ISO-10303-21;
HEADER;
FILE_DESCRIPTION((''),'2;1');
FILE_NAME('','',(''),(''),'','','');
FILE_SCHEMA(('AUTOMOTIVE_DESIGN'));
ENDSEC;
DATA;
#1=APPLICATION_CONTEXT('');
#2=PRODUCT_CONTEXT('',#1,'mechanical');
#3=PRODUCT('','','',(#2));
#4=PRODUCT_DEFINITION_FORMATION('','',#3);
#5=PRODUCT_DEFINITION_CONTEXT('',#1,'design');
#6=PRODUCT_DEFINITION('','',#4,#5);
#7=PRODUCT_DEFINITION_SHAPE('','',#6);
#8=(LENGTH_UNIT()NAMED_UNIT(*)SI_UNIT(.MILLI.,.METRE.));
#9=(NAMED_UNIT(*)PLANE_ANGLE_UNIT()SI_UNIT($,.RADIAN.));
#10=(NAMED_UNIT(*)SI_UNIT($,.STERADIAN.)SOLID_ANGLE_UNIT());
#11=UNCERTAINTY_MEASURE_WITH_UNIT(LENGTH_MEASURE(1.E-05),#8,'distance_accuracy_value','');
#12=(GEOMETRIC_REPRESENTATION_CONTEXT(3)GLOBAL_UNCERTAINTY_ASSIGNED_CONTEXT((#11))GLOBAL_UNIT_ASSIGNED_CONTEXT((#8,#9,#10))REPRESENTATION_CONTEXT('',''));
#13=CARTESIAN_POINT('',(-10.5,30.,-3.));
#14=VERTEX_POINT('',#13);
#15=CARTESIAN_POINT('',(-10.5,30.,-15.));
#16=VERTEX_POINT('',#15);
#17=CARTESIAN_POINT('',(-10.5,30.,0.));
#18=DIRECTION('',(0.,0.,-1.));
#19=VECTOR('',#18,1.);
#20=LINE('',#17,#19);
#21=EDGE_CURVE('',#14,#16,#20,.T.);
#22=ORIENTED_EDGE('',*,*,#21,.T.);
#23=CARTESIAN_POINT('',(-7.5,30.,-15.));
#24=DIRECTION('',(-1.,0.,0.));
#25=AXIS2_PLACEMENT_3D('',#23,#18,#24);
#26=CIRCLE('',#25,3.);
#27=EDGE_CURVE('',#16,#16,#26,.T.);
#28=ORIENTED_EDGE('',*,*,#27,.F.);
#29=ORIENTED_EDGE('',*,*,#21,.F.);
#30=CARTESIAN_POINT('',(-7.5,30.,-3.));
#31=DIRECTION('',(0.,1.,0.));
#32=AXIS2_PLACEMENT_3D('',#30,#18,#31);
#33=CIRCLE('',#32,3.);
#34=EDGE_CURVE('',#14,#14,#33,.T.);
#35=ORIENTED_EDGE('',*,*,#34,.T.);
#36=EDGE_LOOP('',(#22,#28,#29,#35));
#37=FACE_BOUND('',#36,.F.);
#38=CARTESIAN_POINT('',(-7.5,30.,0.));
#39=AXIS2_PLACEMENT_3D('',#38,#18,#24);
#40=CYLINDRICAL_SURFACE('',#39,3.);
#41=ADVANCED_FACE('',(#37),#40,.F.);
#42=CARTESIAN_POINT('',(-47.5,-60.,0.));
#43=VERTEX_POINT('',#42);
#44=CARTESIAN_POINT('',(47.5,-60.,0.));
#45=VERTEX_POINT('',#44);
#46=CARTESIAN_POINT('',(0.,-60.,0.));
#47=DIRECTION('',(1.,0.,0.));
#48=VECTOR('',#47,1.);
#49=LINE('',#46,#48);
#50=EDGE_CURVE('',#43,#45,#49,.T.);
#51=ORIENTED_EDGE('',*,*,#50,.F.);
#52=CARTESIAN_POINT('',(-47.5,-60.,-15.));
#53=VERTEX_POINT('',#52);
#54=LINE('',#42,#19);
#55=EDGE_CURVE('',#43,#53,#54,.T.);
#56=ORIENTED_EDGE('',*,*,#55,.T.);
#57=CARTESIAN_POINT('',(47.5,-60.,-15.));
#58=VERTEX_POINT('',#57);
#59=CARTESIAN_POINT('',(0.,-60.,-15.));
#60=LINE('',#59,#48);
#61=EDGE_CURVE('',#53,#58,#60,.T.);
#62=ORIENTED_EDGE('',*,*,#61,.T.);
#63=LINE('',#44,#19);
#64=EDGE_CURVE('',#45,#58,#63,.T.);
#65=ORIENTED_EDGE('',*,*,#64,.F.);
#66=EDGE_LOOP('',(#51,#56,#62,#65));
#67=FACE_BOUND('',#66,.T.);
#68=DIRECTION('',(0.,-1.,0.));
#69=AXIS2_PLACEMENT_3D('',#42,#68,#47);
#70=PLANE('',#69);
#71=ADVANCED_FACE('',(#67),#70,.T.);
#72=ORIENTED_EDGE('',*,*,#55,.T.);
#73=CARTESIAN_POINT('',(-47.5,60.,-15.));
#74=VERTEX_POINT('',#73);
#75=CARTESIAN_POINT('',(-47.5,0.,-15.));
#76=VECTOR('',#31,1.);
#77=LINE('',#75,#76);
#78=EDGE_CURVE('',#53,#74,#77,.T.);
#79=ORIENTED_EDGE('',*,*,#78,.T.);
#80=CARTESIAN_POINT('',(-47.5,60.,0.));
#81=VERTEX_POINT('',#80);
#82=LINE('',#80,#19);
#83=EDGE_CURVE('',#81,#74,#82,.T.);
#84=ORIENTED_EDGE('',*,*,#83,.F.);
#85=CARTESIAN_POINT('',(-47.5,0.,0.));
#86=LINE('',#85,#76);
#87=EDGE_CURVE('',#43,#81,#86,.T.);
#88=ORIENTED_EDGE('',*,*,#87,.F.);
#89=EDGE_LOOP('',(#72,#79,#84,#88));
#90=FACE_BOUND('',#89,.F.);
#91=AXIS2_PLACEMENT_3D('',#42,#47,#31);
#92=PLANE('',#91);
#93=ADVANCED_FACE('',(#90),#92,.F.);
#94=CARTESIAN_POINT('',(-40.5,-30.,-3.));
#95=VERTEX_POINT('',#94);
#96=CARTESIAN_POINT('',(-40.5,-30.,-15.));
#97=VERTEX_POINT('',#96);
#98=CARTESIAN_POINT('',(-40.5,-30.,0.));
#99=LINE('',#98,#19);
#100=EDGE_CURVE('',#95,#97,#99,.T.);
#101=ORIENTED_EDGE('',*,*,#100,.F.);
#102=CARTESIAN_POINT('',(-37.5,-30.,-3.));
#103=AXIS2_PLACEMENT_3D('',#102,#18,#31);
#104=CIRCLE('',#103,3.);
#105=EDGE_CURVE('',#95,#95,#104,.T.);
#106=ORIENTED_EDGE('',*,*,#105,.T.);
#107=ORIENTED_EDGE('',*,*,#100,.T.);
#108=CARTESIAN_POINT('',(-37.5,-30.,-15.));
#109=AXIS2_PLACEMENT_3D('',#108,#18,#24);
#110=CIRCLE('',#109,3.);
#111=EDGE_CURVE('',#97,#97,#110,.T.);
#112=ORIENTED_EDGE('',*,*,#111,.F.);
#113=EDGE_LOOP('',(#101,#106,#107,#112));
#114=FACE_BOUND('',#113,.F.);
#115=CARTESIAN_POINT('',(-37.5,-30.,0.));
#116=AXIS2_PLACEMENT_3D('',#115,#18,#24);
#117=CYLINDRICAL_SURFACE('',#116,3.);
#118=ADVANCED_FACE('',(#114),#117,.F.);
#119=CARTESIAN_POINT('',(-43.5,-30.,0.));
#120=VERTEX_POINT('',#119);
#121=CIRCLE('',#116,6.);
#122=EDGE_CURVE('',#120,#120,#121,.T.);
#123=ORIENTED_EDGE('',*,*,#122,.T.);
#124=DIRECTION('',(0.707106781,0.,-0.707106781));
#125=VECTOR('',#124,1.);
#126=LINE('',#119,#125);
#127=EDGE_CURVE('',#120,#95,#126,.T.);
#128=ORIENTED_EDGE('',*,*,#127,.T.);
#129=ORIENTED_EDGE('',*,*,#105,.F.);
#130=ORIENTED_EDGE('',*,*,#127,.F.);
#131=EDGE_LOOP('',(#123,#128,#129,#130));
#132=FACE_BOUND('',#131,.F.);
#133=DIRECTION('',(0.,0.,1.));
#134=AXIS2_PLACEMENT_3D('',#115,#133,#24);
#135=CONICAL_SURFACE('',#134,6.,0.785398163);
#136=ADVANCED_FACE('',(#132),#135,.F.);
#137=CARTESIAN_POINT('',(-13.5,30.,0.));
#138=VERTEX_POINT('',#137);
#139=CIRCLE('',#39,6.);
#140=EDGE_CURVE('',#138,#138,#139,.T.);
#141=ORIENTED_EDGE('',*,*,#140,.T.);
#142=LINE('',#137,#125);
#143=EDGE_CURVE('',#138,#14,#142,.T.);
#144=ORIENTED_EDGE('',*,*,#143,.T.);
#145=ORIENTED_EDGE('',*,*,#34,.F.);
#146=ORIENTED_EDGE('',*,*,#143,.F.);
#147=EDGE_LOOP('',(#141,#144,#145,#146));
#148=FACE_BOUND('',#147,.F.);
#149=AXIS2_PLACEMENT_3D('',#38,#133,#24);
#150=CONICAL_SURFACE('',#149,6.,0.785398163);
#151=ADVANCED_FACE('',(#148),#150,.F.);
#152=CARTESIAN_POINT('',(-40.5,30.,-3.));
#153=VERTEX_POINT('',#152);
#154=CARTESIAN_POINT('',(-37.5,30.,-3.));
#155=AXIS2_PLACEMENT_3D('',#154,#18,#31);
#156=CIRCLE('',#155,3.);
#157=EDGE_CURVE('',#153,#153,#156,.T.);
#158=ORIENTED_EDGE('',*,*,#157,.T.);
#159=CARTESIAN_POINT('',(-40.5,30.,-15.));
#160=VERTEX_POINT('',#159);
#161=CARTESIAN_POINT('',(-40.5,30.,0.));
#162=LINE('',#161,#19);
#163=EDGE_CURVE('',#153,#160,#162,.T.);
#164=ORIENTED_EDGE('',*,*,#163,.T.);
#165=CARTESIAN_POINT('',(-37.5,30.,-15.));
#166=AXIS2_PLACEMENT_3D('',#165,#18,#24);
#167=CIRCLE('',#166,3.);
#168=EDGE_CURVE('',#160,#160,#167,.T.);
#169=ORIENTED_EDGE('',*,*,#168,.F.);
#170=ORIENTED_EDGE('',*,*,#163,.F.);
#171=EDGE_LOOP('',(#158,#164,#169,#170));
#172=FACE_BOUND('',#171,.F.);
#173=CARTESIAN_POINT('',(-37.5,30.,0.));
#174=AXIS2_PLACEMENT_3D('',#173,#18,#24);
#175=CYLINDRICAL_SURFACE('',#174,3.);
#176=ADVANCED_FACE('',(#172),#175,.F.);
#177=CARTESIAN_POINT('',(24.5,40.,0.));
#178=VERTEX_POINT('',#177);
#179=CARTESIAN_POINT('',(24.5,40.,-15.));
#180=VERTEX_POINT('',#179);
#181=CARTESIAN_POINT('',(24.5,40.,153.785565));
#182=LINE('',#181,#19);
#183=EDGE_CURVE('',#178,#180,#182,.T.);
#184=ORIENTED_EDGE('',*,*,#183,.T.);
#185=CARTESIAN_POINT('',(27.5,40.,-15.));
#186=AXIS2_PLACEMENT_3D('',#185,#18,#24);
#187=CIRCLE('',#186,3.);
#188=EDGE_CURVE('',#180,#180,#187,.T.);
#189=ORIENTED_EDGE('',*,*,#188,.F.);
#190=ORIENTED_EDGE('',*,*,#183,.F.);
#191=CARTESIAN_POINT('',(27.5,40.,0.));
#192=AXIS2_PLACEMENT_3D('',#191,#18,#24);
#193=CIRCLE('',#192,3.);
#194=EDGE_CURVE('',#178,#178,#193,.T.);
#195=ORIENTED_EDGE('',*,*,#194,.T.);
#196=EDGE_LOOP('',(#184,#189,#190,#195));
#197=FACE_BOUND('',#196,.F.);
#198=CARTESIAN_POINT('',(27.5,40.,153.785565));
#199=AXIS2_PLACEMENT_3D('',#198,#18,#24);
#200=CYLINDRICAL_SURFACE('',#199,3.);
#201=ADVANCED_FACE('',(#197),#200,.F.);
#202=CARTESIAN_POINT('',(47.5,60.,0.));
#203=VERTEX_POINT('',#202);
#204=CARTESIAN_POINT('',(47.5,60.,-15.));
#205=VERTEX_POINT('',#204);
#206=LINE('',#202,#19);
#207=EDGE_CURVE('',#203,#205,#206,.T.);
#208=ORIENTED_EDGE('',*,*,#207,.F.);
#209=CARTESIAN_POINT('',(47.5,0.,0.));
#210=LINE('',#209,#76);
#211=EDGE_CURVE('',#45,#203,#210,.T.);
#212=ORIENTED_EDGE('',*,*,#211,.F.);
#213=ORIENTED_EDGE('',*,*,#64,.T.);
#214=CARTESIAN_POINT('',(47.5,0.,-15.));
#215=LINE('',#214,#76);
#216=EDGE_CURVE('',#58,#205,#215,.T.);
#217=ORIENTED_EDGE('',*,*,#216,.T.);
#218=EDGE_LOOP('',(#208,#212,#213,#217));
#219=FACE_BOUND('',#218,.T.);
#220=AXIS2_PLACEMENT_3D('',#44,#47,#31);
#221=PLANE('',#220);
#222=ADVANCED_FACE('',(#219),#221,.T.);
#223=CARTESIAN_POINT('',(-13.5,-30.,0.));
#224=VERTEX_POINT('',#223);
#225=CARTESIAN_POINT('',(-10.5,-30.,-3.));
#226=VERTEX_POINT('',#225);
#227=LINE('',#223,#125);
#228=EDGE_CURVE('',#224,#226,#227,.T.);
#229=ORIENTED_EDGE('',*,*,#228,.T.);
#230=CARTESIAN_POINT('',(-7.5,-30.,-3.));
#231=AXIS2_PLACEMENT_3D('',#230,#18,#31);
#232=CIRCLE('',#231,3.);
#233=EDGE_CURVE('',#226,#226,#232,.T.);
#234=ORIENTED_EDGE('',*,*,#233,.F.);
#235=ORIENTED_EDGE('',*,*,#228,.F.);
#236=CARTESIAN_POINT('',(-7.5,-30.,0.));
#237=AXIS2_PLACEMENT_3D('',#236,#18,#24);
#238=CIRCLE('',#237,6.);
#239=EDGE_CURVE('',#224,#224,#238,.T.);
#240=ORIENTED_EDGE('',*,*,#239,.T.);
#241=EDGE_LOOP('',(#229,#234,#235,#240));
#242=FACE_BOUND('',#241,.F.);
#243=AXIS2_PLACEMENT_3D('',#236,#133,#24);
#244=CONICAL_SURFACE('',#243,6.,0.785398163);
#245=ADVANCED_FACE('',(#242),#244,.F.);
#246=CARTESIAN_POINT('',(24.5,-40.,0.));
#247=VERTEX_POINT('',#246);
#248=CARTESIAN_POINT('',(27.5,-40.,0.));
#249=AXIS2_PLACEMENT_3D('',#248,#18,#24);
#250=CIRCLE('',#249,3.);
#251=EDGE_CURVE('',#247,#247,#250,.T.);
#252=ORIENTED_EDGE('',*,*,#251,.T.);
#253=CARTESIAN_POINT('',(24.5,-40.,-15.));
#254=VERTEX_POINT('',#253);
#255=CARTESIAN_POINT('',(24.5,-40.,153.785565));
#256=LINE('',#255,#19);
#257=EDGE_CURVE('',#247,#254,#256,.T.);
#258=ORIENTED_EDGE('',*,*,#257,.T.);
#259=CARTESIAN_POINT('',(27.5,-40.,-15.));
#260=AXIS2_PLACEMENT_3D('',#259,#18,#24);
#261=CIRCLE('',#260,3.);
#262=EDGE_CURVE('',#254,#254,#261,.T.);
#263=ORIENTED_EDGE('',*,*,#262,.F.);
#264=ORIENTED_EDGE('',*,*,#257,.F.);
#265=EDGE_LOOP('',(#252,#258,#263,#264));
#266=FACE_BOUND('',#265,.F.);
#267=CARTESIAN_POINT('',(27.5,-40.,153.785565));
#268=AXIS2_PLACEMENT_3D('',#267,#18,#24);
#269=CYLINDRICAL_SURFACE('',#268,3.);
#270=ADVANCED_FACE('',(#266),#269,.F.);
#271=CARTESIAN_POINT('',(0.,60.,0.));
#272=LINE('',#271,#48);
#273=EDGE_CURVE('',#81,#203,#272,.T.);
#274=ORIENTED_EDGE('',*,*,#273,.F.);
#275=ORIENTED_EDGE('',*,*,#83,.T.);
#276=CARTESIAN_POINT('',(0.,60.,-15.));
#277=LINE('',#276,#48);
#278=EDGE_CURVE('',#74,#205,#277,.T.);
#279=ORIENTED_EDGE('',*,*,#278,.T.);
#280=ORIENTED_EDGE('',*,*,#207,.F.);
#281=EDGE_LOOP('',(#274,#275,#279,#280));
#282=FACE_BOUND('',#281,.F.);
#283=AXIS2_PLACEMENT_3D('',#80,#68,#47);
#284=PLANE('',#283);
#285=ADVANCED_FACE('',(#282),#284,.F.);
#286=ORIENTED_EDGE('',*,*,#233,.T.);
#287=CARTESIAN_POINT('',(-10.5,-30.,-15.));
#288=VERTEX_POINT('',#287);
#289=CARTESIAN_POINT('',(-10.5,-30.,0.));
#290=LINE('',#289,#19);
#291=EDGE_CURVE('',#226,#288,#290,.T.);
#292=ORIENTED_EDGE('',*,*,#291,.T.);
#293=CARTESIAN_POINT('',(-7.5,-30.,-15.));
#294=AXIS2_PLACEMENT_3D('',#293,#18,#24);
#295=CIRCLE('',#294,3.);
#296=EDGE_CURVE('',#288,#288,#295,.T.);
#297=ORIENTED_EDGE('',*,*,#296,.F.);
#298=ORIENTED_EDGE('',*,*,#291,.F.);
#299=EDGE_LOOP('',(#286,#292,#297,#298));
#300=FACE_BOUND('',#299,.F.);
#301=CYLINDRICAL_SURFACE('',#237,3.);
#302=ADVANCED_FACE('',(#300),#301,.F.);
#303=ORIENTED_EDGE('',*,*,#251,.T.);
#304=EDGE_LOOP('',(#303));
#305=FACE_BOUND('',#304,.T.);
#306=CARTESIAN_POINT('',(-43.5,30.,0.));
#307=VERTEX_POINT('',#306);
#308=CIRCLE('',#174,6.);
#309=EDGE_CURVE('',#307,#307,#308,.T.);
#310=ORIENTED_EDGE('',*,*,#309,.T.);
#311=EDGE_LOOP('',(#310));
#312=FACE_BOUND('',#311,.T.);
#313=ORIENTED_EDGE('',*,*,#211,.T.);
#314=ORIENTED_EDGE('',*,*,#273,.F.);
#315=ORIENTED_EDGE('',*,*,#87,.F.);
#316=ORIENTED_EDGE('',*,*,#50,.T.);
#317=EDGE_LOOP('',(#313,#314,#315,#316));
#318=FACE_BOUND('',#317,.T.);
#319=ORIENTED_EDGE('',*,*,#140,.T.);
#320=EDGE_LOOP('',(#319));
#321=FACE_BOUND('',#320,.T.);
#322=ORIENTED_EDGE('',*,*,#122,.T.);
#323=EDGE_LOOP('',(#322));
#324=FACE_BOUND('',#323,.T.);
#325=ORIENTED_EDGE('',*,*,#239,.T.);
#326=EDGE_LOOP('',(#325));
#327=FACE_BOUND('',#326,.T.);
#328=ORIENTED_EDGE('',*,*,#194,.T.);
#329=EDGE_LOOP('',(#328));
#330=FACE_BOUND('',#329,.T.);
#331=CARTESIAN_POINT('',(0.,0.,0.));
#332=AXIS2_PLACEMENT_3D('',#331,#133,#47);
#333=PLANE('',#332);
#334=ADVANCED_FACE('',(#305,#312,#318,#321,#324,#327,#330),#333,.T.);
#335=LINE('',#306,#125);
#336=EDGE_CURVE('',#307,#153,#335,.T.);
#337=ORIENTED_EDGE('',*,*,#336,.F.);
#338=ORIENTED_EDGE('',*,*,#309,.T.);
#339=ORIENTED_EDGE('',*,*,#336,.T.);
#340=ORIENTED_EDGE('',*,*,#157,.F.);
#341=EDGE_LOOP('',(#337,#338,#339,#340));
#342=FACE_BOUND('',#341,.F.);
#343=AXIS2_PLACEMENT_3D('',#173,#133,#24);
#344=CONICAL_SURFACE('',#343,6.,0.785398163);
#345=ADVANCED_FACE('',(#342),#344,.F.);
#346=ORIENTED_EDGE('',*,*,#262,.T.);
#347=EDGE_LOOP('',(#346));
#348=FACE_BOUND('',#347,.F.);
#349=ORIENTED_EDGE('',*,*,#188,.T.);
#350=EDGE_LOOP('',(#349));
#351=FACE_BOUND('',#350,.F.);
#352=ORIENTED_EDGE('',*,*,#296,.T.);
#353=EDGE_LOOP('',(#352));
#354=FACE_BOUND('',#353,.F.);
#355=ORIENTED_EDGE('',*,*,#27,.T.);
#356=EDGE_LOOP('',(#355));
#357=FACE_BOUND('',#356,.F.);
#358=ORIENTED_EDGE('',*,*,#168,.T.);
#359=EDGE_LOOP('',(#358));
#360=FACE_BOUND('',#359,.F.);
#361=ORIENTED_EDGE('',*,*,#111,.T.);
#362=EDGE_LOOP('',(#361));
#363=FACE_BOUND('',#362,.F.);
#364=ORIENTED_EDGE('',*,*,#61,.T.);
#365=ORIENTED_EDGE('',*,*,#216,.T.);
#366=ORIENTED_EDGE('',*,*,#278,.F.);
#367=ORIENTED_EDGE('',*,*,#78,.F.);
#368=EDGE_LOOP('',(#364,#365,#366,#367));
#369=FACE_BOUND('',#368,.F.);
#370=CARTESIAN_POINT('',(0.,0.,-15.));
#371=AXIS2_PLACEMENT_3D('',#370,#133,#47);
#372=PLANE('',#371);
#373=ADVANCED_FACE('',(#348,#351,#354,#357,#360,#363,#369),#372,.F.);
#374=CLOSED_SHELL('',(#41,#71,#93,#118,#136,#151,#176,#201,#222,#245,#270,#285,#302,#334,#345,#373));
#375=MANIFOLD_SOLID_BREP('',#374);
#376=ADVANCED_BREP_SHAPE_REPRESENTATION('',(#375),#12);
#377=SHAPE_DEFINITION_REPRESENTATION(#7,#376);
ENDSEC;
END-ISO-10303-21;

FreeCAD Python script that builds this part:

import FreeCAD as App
import Part
import Sketcher
from FreeCAD import Vector
Q = App.Units.Quantity

doc = App.newDocument("Part")
body = doc.addObject("PartDesign::Body", "Body")

# Sketch on XY plane
sketch1 = body.newObject("Sketcher::SketchObject", "Sketch")
sketch1.AttachmentSupport = (doc.getObject("XY_Plane"), [""])
sketch1.MapMode = "FlatFace"
sketch1.addGeometry([
    Part.LineSegment(Vector(-48, 60, 0), Vector(-48, -60, 0)),
    Part.LineSegment(Vector(-48, -60, 0), Vector(48, -60, 0)),
    Part.LineSegment(Vector(48, -60, 0), Vector(48, 60, 0)),
    Part.LineSegment(Vector(48, 60, 0), Vector(-48, 60, 0)),
], False)
sketch1.addConstraint([
    Sketcher.Constraint("Coincident", 0, 2, 1, 1),
    Sketcher.Constraint("Coincident", 1, 2, 2, 1),
    Sketcher.Constraint("Coincident", 2, 2, 3, 1),
    Sketcher.Constraint("Coincident", 3, 2, 0, 1),
    Sketcher.Constraint("Vertical", 0),
    Sketcher.Constraint("Horizontal", 1),
    Sketcher.Constraint("Vertical", 2),
    Sketcher.Constraint("Horizontal", 3),
    Sketcher.Constraint("Symmetric", 0, 2, 2, 2, -1, 1),
    Sketcher.Constraint("DistanceX", 1, 1, 1, 2, Q("95 mm")),
    Sketcher.Constraint("DistanceY", 0, 2, 0, 1, Q("120 mm")),
])
pad1 = body.newObject("PartDesign::Pad", "Pad")
pad1.Profile = sketch1
pad1.Length = 15
pad1.Reversed = True

# Sketch on XY plane
sketch2 = body.newObject("Sketcher::SketchObject", "Sketch001")
sketch2.AttachmentSupport = (doc.getObject("XY_Plane"), [""])
sketch2.MapMode = "FlatFace"
sketch2.addGeometry([
    Part.Circle(Vector(-37.5, 30, 0), Vector(0, 0, 1), 3),
    Part.Circle(Vector(-7.5, 30, 0), Vector(0, 0, 1), 3),
    Part.Circle(Vector(-37.5, -30, 0), Vector(0, 0, 1), 3),
    Part.Circle(Vector(-7.5, -30, 0), Vector(0, 0, 1), 3),
], False)
sketch2.addConstraint([
    Sketcher.Constraint("Equal", 0, 1),
    Sketcher.Constraint("Equal", 1, 2),
    Sketcher.Constraint("Equal", 2, 3),
    Sketcher.Constraint("Symmetric", 0, 3, 2, 3, -1),
    Sketcher.Constraint("Symmetric", 1, 3, 3, 3, -1),
    Sketcher.Constraint("Horizontal", 0, 3, 1, 3),
    Sketcher.Constraint("Diameter", 0, Q("6 mm")),
    Sketcher.Constraint("DistanceY", -1, 1, 0, 3, Q("30 mm")),
    Sketcher.Constraint("DistanceX", 0, 3, 1, 3, Q("30 mm")),
    Sketcher.Constraint("DistanceX", 0, 3, -1, 1, Q("37.5 mm")),
])
doc.recompute()
hole = body.newObject("PartDesign::Hole", "Hole")
hole.Profile = sketch2
hole.ThreadType = "None"
hole.Diameter = 6
hole.DepthType = "ThroughAll"
hole.HoleCutType = "Countersink"
hole.HoleCutDiameter = 12
hole.HoleCutCountersinkAngle = 90

# Sketch on XY plane
sketch3 = body.newObject("Sketcher::SketchObject", "Sketch002")
sketch3.AttachmentSupport = (doc.getObject("XY_Plane"), [""])
sketch3.MapMode = "FlatFace"
sketch3.addGeometry([
    Part.Circle(Vector(27.5, 40, 0), Vector(0, 0, 1), 3),
    Part.Circle(Vector(27.5, -40, 0), Vector(0, 0, 1), 3),
], False)
sketch3.addConstraint([
    Sketcher.Constraint("Equal", 0, 1),
    Sketcher.Constraint("Symmetric", 0, 3, 1, 3, -1),
    Sketcher.Constraint("Diameter", 0, Q("6 mm")),
    Sketcher.Constraint("DistanceY", -1, 1, 0, 3, Q("40 mm")),
    Sketcher.Constraint("DistanceX", -1, 1, 0, 3, Q("27.5 mm")),
])
doc.recompute()
hole2 = body.newObject("PartDesign::Hole", "Hole001")
hole2.Profile = sketch3
hole2.ThreadType = "None"
hole2.Diameter = 6
hole2.DepthType = "ThroughAll"

doc.recompute()
